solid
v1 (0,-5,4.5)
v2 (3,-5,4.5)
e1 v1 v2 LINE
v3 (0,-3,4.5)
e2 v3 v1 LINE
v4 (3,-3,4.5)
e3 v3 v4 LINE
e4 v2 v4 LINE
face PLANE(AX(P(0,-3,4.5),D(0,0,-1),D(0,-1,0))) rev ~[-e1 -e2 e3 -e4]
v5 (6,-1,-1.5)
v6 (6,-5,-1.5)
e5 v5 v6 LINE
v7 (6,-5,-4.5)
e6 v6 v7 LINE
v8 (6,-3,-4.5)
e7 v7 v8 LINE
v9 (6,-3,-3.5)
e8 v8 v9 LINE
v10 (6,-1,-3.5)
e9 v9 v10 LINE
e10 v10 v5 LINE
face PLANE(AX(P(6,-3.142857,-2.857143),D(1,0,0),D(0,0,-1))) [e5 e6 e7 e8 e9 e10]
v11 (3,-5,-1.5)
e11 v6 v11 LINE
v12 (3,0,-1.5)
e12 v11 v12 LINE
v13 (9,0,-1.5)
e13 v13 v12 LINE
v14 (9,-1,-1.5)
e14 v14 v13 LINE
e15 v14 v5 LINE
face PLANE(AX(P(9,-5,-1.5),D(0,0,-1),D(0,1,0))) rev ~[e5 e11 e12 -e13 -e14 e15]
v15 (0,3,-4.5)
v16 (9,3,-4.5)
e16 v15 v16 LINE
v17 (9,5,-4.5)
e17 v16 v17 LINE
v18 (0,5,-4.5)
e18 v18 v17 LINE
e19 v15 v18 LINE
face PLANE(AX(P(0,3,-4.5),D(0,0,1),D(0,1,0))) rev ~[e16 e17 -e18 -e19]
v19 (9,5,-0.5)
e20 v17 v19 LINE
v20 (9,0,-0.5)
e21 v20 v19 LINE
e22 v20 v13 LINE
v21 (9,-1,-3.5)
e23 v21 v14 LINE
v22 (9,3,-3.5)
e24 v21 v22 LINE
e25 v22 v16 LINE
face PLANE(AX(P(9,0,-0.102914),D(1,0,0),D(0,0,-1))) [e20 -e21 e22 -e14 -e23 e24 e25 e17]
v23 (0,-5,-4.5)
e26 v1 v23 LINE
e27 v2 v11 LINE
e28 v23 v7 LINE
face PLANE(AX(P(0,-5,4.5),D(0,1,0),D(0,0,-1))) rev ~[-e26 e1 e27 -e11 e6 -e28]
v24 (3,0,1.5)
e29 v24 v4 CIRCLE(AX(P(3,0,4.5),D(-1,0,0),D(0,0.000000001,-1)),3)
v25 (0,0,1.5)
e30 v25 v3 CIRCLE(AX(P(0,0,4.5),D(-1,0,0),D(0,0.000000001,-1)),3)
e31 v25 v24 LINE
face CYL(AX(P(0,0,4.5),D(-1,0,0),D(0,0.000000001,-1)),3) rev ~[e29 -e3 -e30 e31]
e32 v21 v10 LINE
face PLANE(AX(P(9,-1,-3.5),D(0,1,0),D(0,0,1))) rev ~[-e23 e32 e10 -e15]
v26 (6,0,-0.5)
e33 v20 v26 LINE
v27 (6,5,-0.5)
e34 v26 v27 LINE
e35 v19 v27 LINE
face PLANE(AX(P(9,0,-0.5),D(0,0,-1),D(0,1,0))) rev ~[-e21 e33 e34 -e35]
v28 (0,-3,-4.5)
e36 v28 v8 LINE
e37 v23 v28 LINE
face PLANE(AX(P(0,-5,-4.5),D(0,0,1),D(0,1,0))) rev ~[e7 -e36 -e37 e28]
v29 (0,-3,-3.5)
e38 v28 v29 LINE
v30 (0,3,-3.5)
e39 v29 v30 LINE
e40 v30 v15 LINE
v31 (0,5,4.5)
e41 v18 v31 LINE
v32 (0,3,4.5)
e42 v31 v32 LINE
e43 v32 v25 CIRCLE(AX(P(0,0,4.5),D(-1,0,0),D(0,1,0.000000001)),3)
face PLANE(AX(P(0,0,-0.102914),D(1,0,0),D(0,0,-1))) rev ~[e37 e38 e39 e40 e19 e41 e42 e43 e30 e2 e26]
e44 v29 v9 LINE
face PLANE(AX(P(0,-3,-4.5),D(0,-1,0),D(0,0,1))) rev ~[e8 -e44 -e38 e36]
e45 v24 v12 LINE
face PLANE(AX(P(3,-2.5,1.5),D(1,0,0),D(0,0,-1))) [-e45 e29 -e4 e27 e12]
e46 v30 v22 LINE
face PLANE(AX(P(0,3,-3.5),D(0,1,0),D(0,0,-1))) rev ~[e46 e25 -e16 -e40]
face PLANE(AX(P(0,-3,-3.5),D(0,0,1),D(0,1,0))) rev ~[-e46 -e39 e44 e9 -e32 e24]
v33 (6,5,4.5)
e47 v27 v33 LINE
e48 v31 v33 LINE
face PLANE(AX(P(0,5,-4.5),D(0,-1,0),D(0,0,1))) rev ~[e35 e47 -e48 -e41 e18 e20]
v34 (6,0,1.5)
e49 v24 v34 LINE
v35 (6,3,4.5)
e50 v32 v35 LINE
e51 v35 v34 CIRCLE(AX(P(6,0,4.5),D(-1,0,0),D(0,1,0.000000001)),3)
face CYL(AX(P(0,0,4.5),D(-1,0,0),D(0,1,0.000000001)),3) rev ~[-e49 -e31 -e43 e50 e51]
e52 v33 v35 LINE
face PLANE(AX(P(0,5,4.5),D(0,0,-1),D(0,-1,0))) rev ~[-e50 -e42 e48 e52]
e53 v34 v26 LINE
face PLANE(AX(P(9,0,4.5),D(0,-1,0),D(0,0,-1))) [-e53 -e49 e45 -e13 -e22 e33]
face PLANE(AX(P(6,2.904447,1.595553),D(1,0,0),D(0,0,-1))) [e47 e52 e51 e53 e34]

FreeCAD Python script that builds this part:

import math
import FreeCAD as App
import Part
import Sketcher

V = App.Vector


def add_polygon(sketch, points):
    """Adds a closed chain of lines whose ends are joined by coincident constraints."""
    first, n = sketch.GeometryCount, len(points)
    for a, b in zip(points, points[1:] + points[:1]):
        sketch.addGeometry(Part.LineSegment(App.Vector(*a, 0), App.Vector(*b, 0)), False)
    for i in range(n):
        sketch.addConstraint(Sketcher.Constraint("Coincident", first + i, 2, first + (i + 1) % n, 1))

doc = App.newDocument("Part")
body = doc.addObject("PartDesign::Body", "Body")

# Sketch on YZ plane
sketch1 = doc.addObject("Sketcher::SketchObject", "Sketch")
body.addObject(sketch1)
sketch1.AttachmentSupport = (doc.YZ_Plane, [""])
sketch1.MapMode = "FlatFace"
sketch1.addGeometry(Part.LineSegment(V(-5, 4.5, 0), V(-5, -4.5, 0)), False)
sketch1.addGeometry(Part.LineSegment(V(-5, -4.5, 0), V(-3, -4.5, 0)), False)
sketch1.addGeometry(Part.LineSegment(V(-3, -4.5, 0), V(-3, -3.5, 0)), False)
sketch1.addGeometry(Part.LineSegment(V(-3, -3.5, 0), V(3, -3.5, 0)), False)
sketch1.addGeometry(Part.LineSegment(V(3, -3.5, 0), V(3, -4.5, 0)), False)
sketch1.addGeometry(Part.LineSegment(V(3, -4.5, 0), V(5, -4.5, 0)), False)
sketch1.addGeometry(Part.LineSegment(V(5, -4.5, 0), V(5, 4.5, 0)), False)
sketch1.addGeometry(Part.LineSegment(V(5, 4.5, 0), V(3, 4.5, 0)), False)
sketch1.addGeometry(Part.ArcOfCircle(Part.Circle(V(0, 4.5, 0), V(0, 0, 1), 3), math.radians(-90), math.radians(0)), False)
sketch1.addGeometry(Part.ArcOfCircle(Part.Circle(V(0, 4.5, 0), V(0, 0, 1), 3), math.radians(180), math.radians(270)), False)
sketch1.addGeometry(Part.LineSegment(V(-3, 4.5, 0), V(-5, 4.5, 0)), False)
sketch1.addConstraint(Sketcher.Constraint("Coincident", 0, 2, 1, 1))
sketch1.addConstraint(Sketcher.Constraint("Coincident", 1, 2, 2, 1))
sketch1.addConstraint(Sketcher.Constraint("Coincident", 2, 2, 3, 1))
sketch1.addConstraint(Sketcher.Constraint("Coincident", 3, 2, 4, 1))
sketch1.addConstraint(Sketcher.Constraint("Coincident", 4, 2, 5, 1))
sketch1.addConstraint(Sketcher.Constraint("Coincident", 5, 2, 6, 1))
sketch1.addConstraint(Sketcher.Constraint("Coincident", 6, 2, 7, 1))
sketch1.addConstraint(Sketcher.Constraint("Coincident", 7, 2, 8, 2))
sketch1.addConstraint(Sketcher.Constraint("Tangent", 8, 1, 9, 2))
sketch1.addConstraint(Sketcher.Constraint("Coincident", 9, 1, 10, 1))
sketch1.addConstraint(Sketcher.Constraint("Coincident", 10, 2, 0, 1))
sketch1.addConstraint(Sketcher.Constraint("Vertical", 0))
sketch1.addConstraint(Sketcher.Constraint("Horizontal", 1))
sketch1.addConstraint(Sketcher.Constraint("Vertical", 2))
sketch1.addConstraint(Sketcher.Constraint("Horizontal", 3))
sketch1.addConstraint(Sketcher.Constraint("Vertical", 4))
sketch1.addConstraint(Sketcher.Constraint("Horizontal", 5))
sketch1.addConstraint(Sketcher.Constraint("Vertical", 6))
sketch1.addConstraint(Sketcher.Constraint("Horizontal", 7))
sketch1.addConstraint(Sketcher.Constraint("Horizontal", 10))
sketch1.addConstraint(Sketcher.Constraint("Equal", 8, 9))
sketch1.addConstraint(Sketcher.Constraint("Symmetric", 0, 2, 6, 2, -1, 1))
sketch1.addConstraint(Sketcher.Constraint("Symmetric", 4, 2, 9, 1, -1, 1))
sketch1.addConstraint(Sketcher.Constraint("Symmetric", 1, 2, 4, 2, -2))
sketch1.addConstraint(Sketcher.Constraint("PointOnObject", 8, 3, -2))
sketch1.addConstraint(Sketcher.Constraint("PointOnObject", 8, 1, -2))
sketch1.addConstraint(Sketcher.Constraint("Horizontal", 9, 3, 6, 2))
sketch1.addConstraint(Sketcher.Constraint("Radius", 8, 3.0))
sketch1.addConstraint(Sketcher.Constraint("DistanceX", 1, 1, 1, 2, 2.0))
sketch1.addConstraint(Sketcher.Constraint("DistanceY", 0, 2, 0, 1, 9.0))
sketch1.addConstraint(Sketcher.Constraint("DistanceY", 2, 1, 2, 2, 1.0))
pad1 = doc.addObject("PartDesign::Pad", "Pad")
body.addObject(pad1)
pad1.Profile = sketch1
pad1.Length = 9

# Sketch on YZ plane
sketch2 = doc.addObject("Sketcher::SketchObject", "Sketch001")
body.addObject(sketch2)
sketch2.AttachmentSupport = (doc.YZ_Plane, [""])
sketch2.MapMode = "FlatFace"
sketch2.AttachmentOffset = App.Placement(V(0, 0, 9), App.Rotation())
sketch2.addGeometry(Part.ArcOfCircle(Part.Circle(V(0, 4.5, 0), V(0, 0, 1), 3), math.radians(-90), math.radians(0)), False)  # 0
sketch2.addGeometry(Part.LineSegment(V(0, 1.5, 0), V(0, -0.5, 0)), False)  # 1
sketch2.addGeometry(Part.LineSegment(V(0, -0.5, 0), V(5, -0.5, 0)), False)  # 2
sketch2.addGeometry(Part.LineSegment(V(5, -0.5, 0), V(5, 4.5, 0)), False)  # 3
sketch2.addGeometry(Part.LineSegment(V(5, 4.5, 0), V(3, 4.5, 0)), False)  # 4
add_polygon(sketch2, [(-1, -1.5), (-5, -1.5), (-5, -4.5), (-3, -4.5), (-3, -3.5), (-1, -3.5)])  # lines 5-10
sketch2.addConstraint(Sketcher.Constraint("Coincident", 0, 1, 1, 1))
sketch2.addConstraint(Sketcher.Constraint("Coincident", 1, 2, 2, 1))
sketch2.addConstraint(Sketcher.Constraint("Coincident", 2, 2, 3, 1))
sketch2.addConstraint(Sketcher.Constraint("Coincident", 3, 2, 4, 1))
sketch2.addConstraint(Sketcher.Constraint("Coincident", 4, 2, 0, 2))
sketch2.addConstraint(Sketcher.Constraint("Vertical", 1))
sketch2.addConstraint(Sketcher.Constraint("Horizontal", 2))
sketch2.addConstraint(Sketcher.Constraint("Vertical", 3))
sketch2.addConstraint(Sketcher.Constraint("Horizontal", 4))
sketch2.addConstraint(Sketcher.Constraint("Horizontal", 5))
sketch2.addConstraint(Sketcher.Constraint("Vertical", 6))
sketch2.addConstraint(Sketcher.Constraint("Horizontal", 7))
sketch2.addConstraint(Sketcher.Constraint("Vertical", 8))
sketch2.addConstraint(Sketcher.Constraint("Horizontal", 9))
sketch2.addConstraint(Sketcher.Constraint("Vertical", 10))
sketch2.addConstraint(Sketcher.Constraint("Symmetric", 3, 2, 6, 2, -1, 1))
sketch2.addConstraint(Sketcher.Constraint("PointOnObject", 0, 3, -2))
sketch2.addConstraint(Sketcher.Constraint("PointOnObject", 0, 1, -2))
sketch2.addConstraint(Sketcher.Constraint("Horizontal", 0, 3, 3, 2))
sketch2.addConstraint(Sketcher.Constraint("Equal", 4, 7))
sketch2.addConstraint(Sketcher.Constraint("Equal", 7, 9))
sketch2.addConstraint(Sketcher.Constraint("Equal", 9, 1))
sketch2.addConstraint(Sketcher.Constraint("Equal", 1, 10))
sketch2.addConstraint(Sketcher.Constraint("Radius", 0, 3.0))
sketch2.addConstraint(Sketcher.Constraint("DistanceX", 2, 1, 2, 2, 5.0))
sketch2.addConstraint(Sketcher.Constraint("DistanceY", 6, 2, 6, 1, 3.0))
sketch2.addConstraint(Sketcher.Constraint("DistanceY", 5, 2, 1, 2, 1.0))
pocket1 = doc.addObject("PartDesign::Pocket", "Pocket")
body.addObject(pocket1)
pocket1.Profile = sketch2
pocket1.Length = 3

# Sketch on YZ plane
sketch3 = doc.addObject("Sketcher::SketchObject", "Sketch002")
body.addObject(sketch3)
sketch3.AttachmentSupport = (doc.YZ_Plane, [""])
sketch3.MapMode = "FlatFace"
sketch3.AttachmentOffset = App.Placement(V(0, 0, 9), App.Rotation())
add_polygon(sketch3, [(0, 4), (-5, 4), (-5, -2), (0, -2)])  # lines 0-3
sketch3.addConstraint(Sketcher.Constraint("Horizontal", 0))
sketch3.addConstraint(Sketcher.Constraint("Vertical", 1))
sketch3.addConstraint(Sketcher.Constraint("Horizontal", 2))
sketch3.addConstraint(Sketcher.Constraint("Vertical", 3))
sketch3.addConstraint(Sketcher.Constraint("PointOnObject", 2, 2, -2))
sketch3.addConstraint(Sketcher.Constraint("DistanceX", 0, 2, 0, 1, 5.0))
sketch3.addConstraint(Sketcher.Constraint("DistanceY", 1, 2, 1, 1, 6.0))
sketch3.addConstraint(Sketcher.Constraint("DistanceY", -1, 1, 0, 2, 4.5))
pocket2 = doc.addObject("PartDesign::Pocket", "Pocket001")
body.addObject(pocket2)
pocket2.Profile = sketch3
pocket2.Length = 6

doc.recompute()
